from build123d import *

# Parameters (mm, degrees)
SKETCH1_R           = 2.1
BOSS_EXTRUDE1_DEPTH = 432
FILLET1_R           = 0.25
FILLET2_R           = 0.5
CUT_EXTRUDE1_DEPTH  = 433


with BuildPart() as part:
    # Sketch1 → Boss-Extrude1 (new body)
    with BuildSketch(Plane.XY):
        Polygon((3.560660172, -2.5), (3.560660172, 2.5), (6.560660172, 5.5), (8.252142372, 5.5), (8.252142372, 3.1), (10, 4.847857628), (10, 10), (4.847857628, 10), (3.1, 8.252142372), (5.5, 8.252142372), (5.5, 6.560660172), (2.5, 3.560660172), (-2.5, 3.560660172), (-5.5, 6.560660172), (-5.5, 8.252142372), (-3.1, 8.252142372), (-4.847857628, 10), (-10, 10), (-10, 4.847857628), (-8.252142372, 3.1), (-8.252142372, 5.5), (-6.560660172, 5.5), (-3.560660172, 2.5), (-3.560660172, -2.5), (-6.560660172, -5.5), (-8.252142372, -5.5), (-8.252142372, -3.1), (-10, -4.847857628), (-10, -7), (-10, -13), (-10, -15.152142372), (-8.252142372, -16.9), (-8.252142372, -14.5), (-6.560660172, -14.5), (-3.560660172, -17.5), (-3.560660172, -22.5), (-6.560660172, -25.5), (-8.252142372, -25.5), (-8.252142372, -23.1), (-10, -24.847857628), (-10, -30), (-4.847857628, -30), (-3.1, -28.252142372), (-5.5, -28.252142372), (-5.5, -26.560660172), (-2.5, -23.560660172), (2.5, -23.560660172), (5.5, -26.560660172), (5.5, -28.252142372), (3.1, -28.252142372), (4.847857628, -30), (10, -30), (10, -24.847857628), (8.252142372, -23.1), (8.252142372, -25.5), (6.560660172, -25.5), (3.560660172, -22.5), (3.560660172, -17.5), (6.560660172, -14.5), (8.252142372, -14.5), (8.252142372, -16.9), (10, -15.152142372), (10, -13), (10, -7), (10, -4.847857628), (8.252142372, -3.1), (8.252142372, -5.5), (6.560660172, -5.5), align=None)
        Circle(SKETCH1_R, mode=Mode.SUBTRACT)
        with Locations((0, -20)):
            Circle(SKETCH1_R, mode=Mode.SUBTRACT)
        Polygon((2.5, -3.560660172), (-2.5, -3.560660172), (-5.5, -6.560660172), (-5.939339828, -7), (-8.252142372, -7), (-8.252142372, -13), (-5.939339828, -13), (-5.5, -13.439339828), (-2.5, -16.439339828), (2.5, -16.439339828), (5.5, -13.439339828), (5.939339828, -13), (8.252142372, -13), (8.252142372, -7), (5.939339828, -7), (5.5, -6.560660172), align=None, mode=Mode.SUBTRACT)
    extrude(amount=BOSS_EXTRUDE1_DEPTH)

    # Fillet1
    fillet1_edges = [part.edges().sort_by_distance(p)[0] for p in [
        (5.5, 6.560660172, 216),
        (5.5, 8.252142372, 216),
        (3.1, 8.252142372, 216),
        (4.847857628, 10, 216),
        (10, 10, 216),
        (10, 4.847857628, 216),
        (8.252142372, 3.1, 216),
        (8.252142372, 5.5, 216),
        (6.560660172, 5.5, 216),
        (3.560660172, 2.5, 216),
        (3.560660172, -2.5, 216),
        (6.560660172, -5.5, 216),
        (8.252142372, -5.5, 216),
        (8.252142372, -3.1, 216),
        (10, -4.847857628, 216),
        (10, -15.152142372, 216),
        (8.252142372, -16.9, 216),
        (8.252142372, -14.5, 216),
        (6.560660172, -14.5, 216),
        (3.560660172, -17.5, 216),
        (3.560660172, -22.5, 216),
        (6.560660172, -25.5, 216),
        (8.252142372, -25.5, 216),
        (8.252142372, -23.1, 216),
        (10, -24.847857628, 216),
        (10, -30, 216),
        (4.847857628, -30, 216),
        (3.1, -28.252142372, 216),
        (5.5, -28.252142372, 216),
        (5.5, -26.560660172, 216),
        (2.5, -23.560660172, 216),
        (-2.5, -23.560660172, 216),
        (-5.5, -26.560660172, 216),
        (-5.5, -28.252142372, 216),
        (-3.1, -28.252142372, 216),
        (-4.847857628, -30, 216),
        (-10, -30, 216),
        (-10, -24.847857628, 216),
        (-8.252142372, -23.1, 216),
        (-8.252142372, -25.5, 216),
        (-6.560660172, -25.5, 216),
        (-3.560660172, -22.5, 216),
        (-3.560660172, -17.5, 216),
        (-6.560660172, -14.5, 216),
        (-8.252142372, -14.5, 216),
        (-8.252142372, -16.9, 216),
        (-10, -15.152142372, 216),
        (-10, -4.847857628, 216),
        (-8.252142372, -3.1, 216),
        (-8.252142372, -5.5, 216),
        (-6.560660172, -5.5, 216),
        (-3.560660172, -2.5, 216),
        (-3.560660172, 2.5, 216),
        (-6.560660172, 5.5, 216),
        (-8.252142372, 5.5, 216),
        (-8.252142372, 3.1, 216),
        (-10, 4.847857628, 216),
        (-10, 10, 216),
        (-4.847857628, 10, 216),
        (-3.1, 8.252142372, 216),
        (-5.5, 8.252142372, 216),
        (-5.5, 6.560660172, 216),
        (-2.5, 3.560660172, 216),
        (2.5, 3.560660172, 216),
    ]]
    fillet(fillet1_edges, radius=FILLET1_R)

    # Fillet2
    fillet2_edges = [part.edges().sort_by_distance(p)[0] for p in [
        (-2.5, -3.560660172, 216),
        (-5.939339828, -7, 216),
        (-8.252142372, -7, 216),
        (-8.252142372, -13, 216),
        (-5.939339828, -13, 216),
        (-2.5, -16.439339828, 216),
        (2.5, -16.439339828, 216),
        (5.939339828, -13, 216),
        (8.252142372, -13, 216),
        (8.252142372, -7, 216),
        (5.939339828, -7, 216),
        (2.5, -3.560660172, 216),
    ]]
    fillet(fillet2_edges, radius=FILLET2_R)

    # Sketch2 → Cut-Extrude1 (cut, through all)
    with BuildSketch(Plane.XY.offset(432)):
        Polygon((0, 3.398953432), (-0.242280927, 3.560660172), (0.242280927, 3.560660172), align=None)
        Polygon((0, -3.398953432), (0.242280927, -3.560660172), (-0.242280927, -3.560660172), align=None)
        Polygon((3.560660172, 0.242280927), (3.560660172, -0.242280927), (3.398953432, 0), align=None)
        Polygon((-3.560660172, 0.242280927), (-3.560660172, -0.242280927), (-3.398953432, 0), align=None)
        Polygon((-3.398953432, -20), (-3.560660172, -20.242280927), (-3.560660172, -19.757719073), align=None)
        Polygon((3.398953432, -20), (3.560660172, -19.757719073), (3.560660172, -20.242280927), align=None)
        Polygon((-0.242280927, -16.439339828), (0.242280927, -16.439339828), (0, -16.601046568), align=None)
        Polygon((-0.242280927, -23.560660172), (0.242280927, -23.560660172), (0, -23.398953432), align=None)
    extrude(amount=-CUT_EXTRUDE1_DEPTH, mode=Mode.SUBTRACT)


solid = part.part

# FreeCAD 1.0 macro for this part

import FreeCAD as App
import Part
import Sketcher

V = App.Vector


def edges_at(feature, points):
    """Names of the edges that pass closest to the given points."""
    edges = feature.Shape.Edges
    near = lambda p: min(range(len(edges)), key=lambda i: edges[i].distToShape(Part.Vertex(*p))[0])
    return sorted({f"Edge{near(p) + 1}" for p in points})

doc = App.newDocument("Part")
params = doc.addObject("Spreadsheet::Sheet", "Params")
for row, (alias, value) in enumerate([
    ("sketch1_diameter", "4.2 mm"),
    ("sketch1_width", "5 mm"),
    ("sketch1_height", "6 mm"),
    ("sketch1_width2", "2.4 mm"),
    ("pad1_length", "432 mm"),
    ("fillet_radius", "0.25 mm"),
    ("fillet2_radius", "0.5 mm"),
], start=1):
    params.set(f"A{row}", alias)
    params.set(f"B{row}", "=" + value)
    params.setAlias(f"B{row}", alias)

body = doc.addObject("PartDesign::Body", "Body")

sketch1 = body.newObject("Sketcher::SketchObject", "Sketch")
sketch1.AttachmentSupport = (doc.getObject("XY_Plane"), [""])
sketch1.MapMode = "FlatFace"
sketch1.addGeometry([
    Part.LineSegment(V(3.6, -2.5, 0), V(3.6, 2.5, 0)),
    Part.LineSegment(V(3.6, 2.5, 0), V(6.6, 5.5, 0)),
    Part.LineSegment(V(6.6, 5.5, 0), V(8.3, 5.5, 0)),
    Part.LineSegment(V(8.3, 5.5, 0), V(8.3, 3.1, 0)),
    Part.LineSegment(V(8.3, 3.1, 0), V(10, 4.8, 0)),
    Part.LineSegment(V(10, 4.8, 0), V(10, 10, 0)),
    Part.LineSegment(V(10, 10, 0), V(4.8, 10, 0)),
    Part.LineSegment(V(4.8, 10, 0), V(3.1, 8.3, 0)),
    Part.LineSegment(V(3.1, 8.3, 0), V(5.5, 8.3, 0)),
    Part.LineSegment(V(5.5, 8.3, 0), V(5.5, 6.6, 0)),
    Part.LineSegment(V(5.5, 6.6, 0), V(2.5, 3.6, 0)),
    Part.LineSegment(V(2.5, 3.6, 0), V(-2.5, 3.6, 0)),
    Part.LineSegment(V(-2.5, 3.6, 0), V(-5.5, 6.6, 0)),
    Part.LineSegment(V(-5.5, 6.6, 0), V(-5.5, 8.3, 0)),
    Part.LineSegment(V(-5.5, 8.3, 0), V(-3.1, 8.3, 0)),
    Part.LineSegment(V(-3.1, 8.3, 0), V(-4.8, 10, 0)),
    Part.LineSegment(V(-4.8, 10, 0), V(-10, 10, 0)),
    Part.LineSegment(V(-10, 10, 0), V(-10, 4.8, 0)),
    Part.LineSegment(V(-10, 4.8, 0), V(-8.3, 3.1, 0)),
    Part.LineSegment(V(-8.3, 3.1, 0), V(-8.3, 5.5, 0)),
    Part.LineSegment(V(-8.3, 5.5, 0), V(-6.6, 5.5, 0)),
    Part.LineSegment(V(-6.6, 5.5, 0), V(-3.6, 2.5, 0)),
    Part.LineSegment(V(-3.6, 2.5, 0), V(-3.6, -2.5, 0)),
    Part.LineSegment(V(-3.6, -2.5, 0), V(-6.6, -5.5, 0)),
    Part.LineSegment(V(-6.6, -5.5, 0), V(-8.3, -5.5, 0)),
    Part.LineSegment(V(-8.3, -5.5, 0), V(-8.3, -3.1, 0)),
    Part.LineSegment(V(-8.3, -3.1, 0), V(-10, -4.8, 0)),
    Part.LineSegment(V(-10, -4.8, 0), V(-10, -15.2, 0)),
    Part.LineSegment(V(-10, -15.2, 0), V(-8.3, -16.9, 0)),
    Part.LineSegment(V(-8.3, -16.9, 0), V(-8.3, -14.5, 0)),
    Part.LineSegment(V(-8.3, -14.5, 0), V(-6.6, -14.5, 0)),
    Part.LineSegment(V(-6.6, -14.5, 0), V(-3.6, -17.5, 0)),
    Part.LineSegment(V(-3.6, -17.5, 0), V(-3.6, -22.5, 0)),
    Part.LineSegment(V(-3.6, -22.5, 0), V(-6.6, -25.5, 0)),
    Part.LineSegment(V(-6.6, -25.5, 0), V(-8.3, -25.5, 0)),
    Part.LineSegment(V(-8.3, -25.5, 0), V(-8.3, -23.1, 0)),
    Part.LineSegment(V(-8.3, -23.1, 0), V(-10, -24.8, 0)),
    Part.LineSegment(V(-10, -24.8, 0), V(-10, -30, 0)),
    Part.LineSegment(V(-10, -30, 0), V(-4.8, -30, 0)),
    Part.LineSegment(V(-4.8, -30, 0), V(-3.1, -28.3, 0)),
    Part.LineSegment(V(-3.1, -28.3, 0), V(-5.5, -28.3, 0)),
    Part.LineSegment(V(-5.5, -28.3, 0), V(-5.5, -26.6, 0)),
    Part.LineSegment(V(-5.5, -26.6, 0), V(-2.5, -23.6, 0)),
    Part.LineSegment(V(-2.5, -23.6, 0), V(2.5, -23.6, 0)),
    Part.LineSegment(V(2.5, -23.6, 0), V(5.5, -26.6, 0)),
    Part.LineSegment(V(5.5, -26.6, 0), V(5.5, -28.3, 0)),
    Part.LineSegment(V(5.5, -28.3, 0), V(3.1, -28.3, 0)),
    Part.LineSegment(V(3.1, -28.3, 0), V(4.8, -30, 0)),
    Part.LineSegment(V(4.8, -30, 0), V(10, -30, 0)),
    Part.LineSegment(V(10, -30, 0), V(10, -24.8, 0)),
    Part.LineSegment(V(10, -24.8, 0), V(8.3, -23.1, 0)),
    Part.LineSegment(V(8.3, -23.1, 0), V(8.3, -25.5, 0)),
    Part.LineSegment(V(8.3, -25.5, 0), V(6.6, -25.5, 0)),
    Part.LineSegment(V(6.6, -25.5, 0), V(3.6, -22.5, 0)),
    Part.LineSegment(V(3.6, -22.5, 0), V(3.6, -17.5, 0)),
    Part.LineSegment(V(3.6, -17.5, 0), V(6.6, -14.5, 0)),
    Part.LineSegment(V(6.6, -14.5, 0), V(8.3, -14.5, 0)),
    Part.LineSegment(V(8.3, -14.5, 0), V(8.3, -16.9, 0)),
    Part.LineSegment(V(8.3, -16.9, 0), V(10, -15.2, 0)),
    Part.LineSegment(V(10, -15.2, 0), V(10, -4.8, 0)),
    Part.LineSegment(V(10, -4.8, 0), V(8.3, -3.1, 0)),
    Part.LineSegment(V(8.3, -3.1, 0), V(8.3, -5.5, 0)),
    Part.LineSegment(V(8.3, -5.5, 0), V(6.6, -5.5, 0)),
    Part.LineSegment(V(6.6, -5.5, 0), V(3.6, -2.5, 0)),
    Part.Circle(V(0, -20, 0), V(0, 0, 1), 2.1),
    Part.LineSegment(V(-2.5, -3.6, 0), V(2.5, -3.6, 0)),
    Part.LineSegment(V(2.5, -3.6, 0), V(5.9, -7, 0)),
    Part.LineSegment(V(5.9, -7, 0), V(8.3, -7, 0)),
    Part.LineSegment(V(8.3, -7, 0), V(8.3, -13, 0)),
    Part.LineSegment(V(8.3, -13, 0), V(5.9, -13, 0)),
    Part.LineSegment(V(5.9, -13, 0), V(2.5, -16.4, 0)),
    Part.LineSegment(V(2.5, -16.4, 0), V(-2.5, -16.4, 0)),
    Part.LineSegment(V(-2.5, -16.4, 0), V(-5.9, -13, 0)),
    Part.LineSegment(V(-5.9, -13, 0), V(-8.3, -13, 0)),
    Part.LineSegment(V(-8.3, -13, 0), V(-8.3, -7, 0)),
    Part.LineSegment(V(-8.3, -7, 0), V(-5.9, -7, 0)),
    Part.LineSegment(V(-5.9, -7, 0), V(-2.5, -3.6, 0)),
    Part.Circle(V(0, 0, 0), V(0, 0, 1), 2.1),
], False)
sketch1.addConstraint([
    Sketcher.Constraint("Coincident", 0, 2, 1, 1),
    Sketcher.Constraint("Coincident", 1, 2, 2, 1),
    Sketcher.Constraint("Coincident", 2, 2, 3, 1),
    Sketcher.Constraint("Coincident", 3, 2, 4, 1),
    Sketcher.Constraint("Coincident", 4, 2, 5, 1),
    Sketcher.Constraint("Coincident", 5, 2, 6, 1),
    Sketcher.Constraint("Coincident", 6, 2, 7, 1),
    Sketcher.Constraint("Coincident", 7, 2, 8, 1),
    Sketcher.Constraint("Coincident", 8, 2, 9, 1),
    Sketcher.Constraint("Coincident", 9, 2, 10, 1),
    Sketcher.Constraint("Coincident", 10, 2, 11, 1),
    Sketcher.Constraint("Coincident", 11, 2, 12, 1),
    Sketcher.Constraint("Coincident", 12, 2, 13, 1),
    Sketcher.Constraint("Coincident", 13, 2, 14, 1),
    Sketcher.Constraint("Coincident", 14, 2, 15, 1),
    Sketcher.Constraint("Coincident", 15, 2, 16, 1),
    Sketcher.Constraint("Coincident", 16, 2, 17, 1),
    Sketcher.Constraint("Coincident", 17, 2, 18, 1),
    Sketcher.Constraint("Coincident", 18, 2, 19, 1),
    Sketcher.Constraint("Coincident", 19, 2, 20, 1),
    Sketcher.Constraint("Coincident", 20, 2, 21, 1),
    Sketcher.Constraint("Coincident", 21, 2, 22, 1),
    Sketcher.Constraint("Coincident", 22, 2, 23, 1),
    Sketcher.Constraint("Coincident", 23, 2, 24, 1),
    Sketcher.Constraint("Coincident", 24, 2, 25, 1),
    Sketcher.Constraint("Coincident", 25, 2, 26, 1),
    Sketcher.Constraint("Coincident", 26, 2, 27, 1),
    Sketcher.Constraint("Coincident", 27, 2, 28, 1),
    Sketcher.Constraint("Coincident", 28, 2, 29, 1),
    Sketcher.Constraint("Coincident", 29, 2, 30, 1),
    Sketcher.Constraint("Coincident", 30, 2, 31, 1),
    Sketcher.Constraint("Coincident", 31, 2, 32, 1),
    Sketcher.Constraint("Coincident", 32, 2, 33, 1),
    Sketcher.Constraint("Coincident", 33, 2, 34, 1),
    Sketcher.Constraint("Coincident", 34, 2, 35, 1),
    Sketcher.Constraint("Coincident", 35, 2, 36, 1),
    Sketcher.Constraint("Coincident", 36, 2, 37, 1),
    Sketcher.Constraint("Coincident", 37, 2, 38, 1),
    Sketcher.Constraint("Coincident", 38, 2, 39, 1),
    Sketcher.Constraint("Coincident", 39, 2, 40, 1),
    Sketcher.Constraint("Coincident", 40, 2, 41, 1),
    Sketcher.Constraint("Coincident", 41, 2, 42, 1),
    Sketcher.Constraint("Coincident", 42, 2, 43, 1),
    Sketcher.Constraint("Coincident", 43, 2, 44, 1),
    Sketcher.Constraint("Coincident", 44, 2, 45, 1),
    Sketcher.Constraint("Coincident", 45, 2, 46, 1),
    Sketcher.Constraint("Coincident", 46, 2, 47, 1),
    Sketcher.Constraint("Coincident", 47, 2, 48, 1),
    Sketcher.Constraint("Coincident", 48, 2, 49, 1),
    Sketcher.Constraint("Coincident", 49, 2, 50, 1),
    Sketcher.Constraint("Coincident", 50, 2, 51, 1),
    Sketcher.Constraint("Coincident", 51, 2, 52, 1),
    Sketcher.Constraint("Coincident", 52, 2, 53, 1),
    Sketcher.Constraint("Coincident", 53, 2, 54, 1),
    Sketcher.Constraint("Coincident", 54, 2, 55, 1),
    Sketcher.Constraint("Coincident", 55, 2, 56, 1),
    Sketcher.Constraint("Coincident", 56, 2, 57, 1),
    Sketcher.Constraint("Coincident", 57, 2, 58, 1),
    Sketcher.Constraint("Coincident", 58, 2, 59, 1),
    Sketcher.Constraint("Coincident", 59, 2, 60, 1),
    Sketcher.Constraint("Coincident", 60, 2, 61, 1),
    Sketcher.Constraint("Coincident", 61, 2, 62, 1),
    Sketcher.Constraint("Coincident", 62, 2, 63, 1),
    Sketcher.Constraint("Coincident", 63, 2, 0, 1),
    Sketcher.Constraint("Coincident", 65, 2, 66, 1),
    Sketcher.Constraint("Coincident", 66, 2, 67, 1),
    Sketcher.Constraint("Coincident", 67, 2, 68, 1),
    Sketcher.Constraint("Coincident", 68, 2, 69, 1),
    Sketcher.Constraint("Coincident", 69, 2, 70, 1),
    Sketcher.Constraint("Coincident", 70, 2, 71, 1),
    Sketcher.Constraint("Coincident", 71, 2, 72, 1),
    Sketcher.Constraint("Coincident", 72, 2, 73, 1),
    Sketcher.Constraint("Coincident", 73, 2, 74, 1),
    Sketcher.Constraint("Coincident", 74, 2, 75, 1),
    Sketcher.Constraint("Coincident", 75, 2, 76, 1),
    Sketcher.Constraint("Coincident", 76, 2, 65, 1),
    Sketcher.Constraint("Vertical", 0),
    Sketcher.Constraint("Horizontal", 2),
    Sketcher.Constraint("Vertical", 3),
    Sketcher.Constraint("Vertical", 5),
    Sketcher.Constraint("Horizontal", 6),
    Sketcher.Constraint("Horizontal", 8),
    Sketcher.Constraint("Vertical", 9),
    Sketcher.Constraint("Horizontal", 11),
    Sketcher.Constraint("Vertical", 13),
    Sketcher.Constraint("Horizontal", 14),
    Sketcher.Constraint("Horizontal", 16),
    Sketcher.Constraint("Vertical", 17),
    Sketcher.Constraint("Vertical", 19),
    Sketcher.Constraint("Horizontal", 20),
    Sketcher.Constraint("Vertical", 22),
    Sketcher.Constraint("Horizontal", 24),
    Sketcher.Constraint("Vertical", 25),
    Sketcher.Constraint("Vertical", 27),
    Sketcher.Constraint("Vertical", 29),
    Sketcher.Constraint("Horizontal", 30),
    Sketcher.Constraint("Vertical", 32),
    Sketcher.Constraint("Horizontal", 34),
    Sketcher.Constraint("Vertical", 35),
    Sketcher.Constraint("Vertical", 37),
    Sketcher.Constraint("Horizontal", 38),
    Sketcher.Constraint("Horizontal", 40),
    Sketcher.Constraint("Vertical", 41),
    Sketcher.Constraint("Horizontal", 43),
    Sketcher.Constraint("Vertical", 45),
    Sketcher.Constraint("Horizontal", 46),
    Sketcher.Constraint("Horizontal", 48),
    Sketcher.Constraint("Vertical", 49),
    Sketcher.Constraint("Vertical", 51),
    Sketcher.Constraint("Horizontal", 52),
    Sketcher.Constraint("Vertical", 54),
    Sketcher.Constraint("Horizontal", 56),
    Sketcher.Constraint("Vertical", 57),
    Sketcher.Constraint("Vertical", 59),
    Sketcher.Constraint("Vertical", 61),
    Sketcher.Constraint("Horizontal", 62),
    Sketcher.Constraint("Horizontal", 65),
    Sketcher.Constraint("Horizontal", 67),
    Sketcher.Constraint("Vertical", 68),
    Sketcher.Constraint("Horizontal", 69),
    Sketcher.Constraint("Horizontal", 71),
    Sketcher.Constraint("Horizontal", 73),
    Sketcher.Constraint("Vertical", 74),
    Sketcher.Constraint("Horizontal", 75),
    Sketcher.Constraint("Coincident", 77, 3, -1, 1),
    Sketcher.Constraint("Equal", 64, 77),
    Sketcher.Constraint("Symmetric", 0, 2, 22, 2, -1, 1),
    Sketcher.Constraint("Symmetric", 1, 2, 23, 2, -1, 1),
    Sketcher.Constraint("Symmetric", 3, 2, 25, 2, -1, 1),
    Sketcher.Constraint("Symmetric", 4, 2, 26, 2, -1, 1),
    Sketcher.Constraint("Symmetric", 17, 2, 59, 2, -1, 1),
    Sketcher.Constraint("Symmetric", 18, 2, 60, 2, -1, 1),
    Sketcher.Constraint("Symmetric", 20, 2, 62, 2, -1, 1),
    Sketcher.Constraint("Symmetric", 11, 2, 65, 2, -1, 1),
    Sketcher.Constraint("Symmetric", 9, 2, 12, 2, -2),
    Sketcher.Constraint("Symmetric", 7, 2, 14, 2, -2),
    Sketcher.Constraint("Symmetric", 6, 2, 15, 2, -2),
    Sketcher.Constraint("Symmetric", 4, 2, 17, 2, -2),
    Sketcher.Constraint("Symmetric", 3, 2, 18, 2, -2),
    Sketcher.Constraint("Symmetric", 1, 2, 20, 2, -2),
    Sketcher.Constraint("Symmetric", 41, 2, 44, 2, -2),
    Sketcher.Constraint("Symmetric", 39, 2, 46, 2, -2),
    Sketcher.Constraint("Symmetric", 38, 2, 47, 2, -2),
    Sketcher.Constraint("Symmetric", 36, 2, 49, 2, -2),
    Sketcher.Constraint("Symmetric", 35, 2, 50, 2, -2),
    Sketcher.Constraint("Symmetric", 33, 2, 52, 2, -2),
    Sketcher.Constraint("Symmetric", 32, 2, 53, 2, -2),
    Sketcher.Constraint("Symmetric", 30, 2, 55, 2, -2),
    Sketcher.Constraint("Symmetric", 28, 2, 57, 2, -2),
    Sketcher.Constraint("Symmetric", 69, 2, 72, 2, -2),
    Sketcher.Constraint("Symmetric", 67, 2, 74, 2, -2),
    Sketcher.Constraint("PointOnObject", 64, 3, -2),
    Sketcher.Constraint("Parallel", 1, 4),
    Sketcher.Constraint("Parallel", 4, 7),
    Sketcher.Constraint("Parallel", 7, 10),
    Sketcher.Constraint("Perpendicular", 10, 12),
    Sketcher.Constraint("Parallel", 12, 15),
    Sketcher.Constraint("Parallel", 18, 21),
    Sketcher.Constraint("Perpendicular", 26, 28),
    Sketcher.Constraint("Parallel", 28, 31),
    Sketcher.Constraint("Perpendicular", 31, 33),
    Sketcher.Constraint("Parallel", 33, 36),
    Sketcher.Constraint("Parallel", 36, 39),
    Sketcher.Constraint("Parallel", 39, 42),
    Sketcher.Constraint("Perpendicular", 42, 44),
    Sketcher.Constraint("Perpendicular", 53, 55),
    Sketcher.Constraint("Parallel", 55, 58),
    Sketcher.Constraint("Parallel", 60, 63),
    Sketcher.Constraint("Parallel", 63, 66),
    Sketcher.Constraint("Perpendicular", 66, 70),
    Sketcher.Constraint("Perpendicular", 70, 72),
    Sketcher.Constraint("Perpendicular", 72, 76),
    Sketcher.Constraint("Vertical", 25, 2, 28, 2),
    Sketcher.Constraint("Vertical", 23, 2, 30, 2),
    Sketcher.Constraint("Vertical", 22, 2, 31, 2),
    Sketcher.Constraint("Vertical", 30, 2, 33, 2),
    Sketcher.Constraint("Vertical", 29, 2, 34, 2),
    Sketcher.Constraint("Vertical", 27, 2, 36, 2),
    Sketcher.Constraint("Vertical", 15, 2, 38, 2),
    Sketcher.Constraint("Vertical", 14, 2, 39, 2),
    Sketcher.Constraint("Vertical", 13, 2, 40, 2),
    Sketcher.Constraint("Vertical", 11, 2, 42, 2),
    Sketcher.Constraint("Vertical", 61, 2, 67, 2),
    Sketcher.Constraint("Vertical", 66, 2, 69, 2),
    Sketcher.Constraint("Vertical", 65, 2, 70, 2),
    Sketcher.Constraint("Vertical", 72, 2, 75, 2),
    Sketcher.Constraint("Equal", 71, 0),
    Sketcher.Constraint("Equal", 46, 3),
    Sketcher.Constraint("Equal", 48, 5),
    Sketcher.Constraint("Equal", 62, 9),
    Sketcher.Constraint("Equal", 25, 29),
    Sketcher.Constraint("Equal", 22, 32),
    Sketcher.Constraint("Equal", 29, 35),
    Sketcher.Constraint("Equal", 17, 37),
    Sketcher.Constraint("Equal", 13, 41),
    Sketcher.Constraint("Equal", 4, 7),
    Sketcher.Constraint("Equal", 1, 10),
    Sketcher.Constraint("Diameter", 64, 4.2),
    Sketcher.Constraint("DistanceX", 11, 2, 11, 1, 5.0),
    Sketcher.Constraint("DistanceY", 68, 2, 68, 1, 6.0),
    Sketcher.Constraint("DistanceX", 8, 1, 8, 2, 2.4),
    Sketcher.Constraint("DistanceY", 64, 3, -1, 1, 20.0),
    Sketcher.Constraint("DistanceX", -1, 1, 4, 2, 10.0),
    Sketcher.Constraint("DistanceY", 37, 2, -1, 1, 30.0),
    Sketcher.Constraint("DistanceY", 66, 2, -1, 1, 7.0),
    Sketcher.Constraint("DistanceY", -1, 1, 1, 2, 5.5),
    Sketcher.Constraint("Distance", 66, 4.863961),
    Sketcher.Constraint("DistanceX", 2, 1, 2, 2, 1.691482),
])
sketch1.setExpression("Constraints[197]", "Params.sketch1_diameter")
sketch1.setExpression("Constraints[198]", "Params.sketch1_width")
sketch1.setExpression("Constraints[199]", "Params.sketch1_height")
sketch1.setExpression("Constraints[200]", "Params.sketch1_width2")
pad1 = body.newObject("PartDesign::Pad", "Pad")
pad1.Profile = sketch1
pad1.setExpression("Length", "Params.pad1_length")
doc.recompute()

fillet = body.newObject("PartDesign::Fillet", "Fillet")
fillet.Base = (pad1, edges_at(pad1, [
    (5.5, 6.561, 216),
    (5.5, 8.252, 216),
    (3.1, 8.252, 216),
    (4.848, 10, 216),
    (10, 10, 216),
    (10, 4.848, 216),
    (8.252, 3.1, 216),
    (8.252, 5.5, 216),
    (6.561, 5.5, 216),
    (3.561, 2.5, 216),
    (3.561, -2.5, 216),
    (6.561, -5.5, 216),
    (8.252, -5.5, 216),
    (8.252, -3.1, 216),
    (10, -4.848, 216),
    (10, -15.152, 216),
    (8.252, -16.9, 216),
    (8.252, -14.5, 216),
    (6.561, -14.5, 216),
    (3.561, -17.5, 216),
    (3.561, -22.5, 216),
    (6.561, -25.5, 216),
    (8.252, -25.5, 216),
    (8.252, -23.1, 216),
    (10, -24.848, 216),
    (10, -30, 216),
    (4.848, -30, 216),
    (3.1, -28.252, 216),
    (5.5, -28.252, 216),
    (5.5, -26.561, 216),
    (2.5, -23.561, 216),
    (-2.5, -23.561, 216),
    (-5.5, -26.561, 216),
    (-5.5, -28.252, 216),
    (-3.1, -28.252, 216),
    (-4.848, -30, 216),
    (-10, -30, 216),
    (-10, -24.848, 216),
    (-8.252, -23.1, 216),
    (-8.252, -25.5, 216),
    (-6.561, -25.5, 216),
    (-3.561, -22.5, 216),
    (-3.561, -17.5, 216),
    (-6.561, -14.5, 216),
    (-8.252, -14.5, 216),
    (-8.252, -16.9, 216),
    (-10, -15.152, 216),
    (-10, -4.848, 216),
    (-8.252, -3.1, 216),
    (-8.252, -5.5, 216),
    (-6.561, -5.5, 216),
    (-3.561, -2.5, 216),
    (-3.561, 2.5, 216),
    (-6.561, 5.5, 216),
    (-8.252, 5.5, 216),
    (-8.252, 3.1, 216),
    (-10, 4.848, 216),
    (-10, 10, 216),
    (-4.848, 10, 216),
    (-3.1, 8.252, 216),
    (-5.5, 8.252, 216),
    (-5.5, 6.561, 216),
    (-2.5, 3.561, 216),
    (2.5, 3.561, 216),
]))
fillet.setExpression("Radius", "Params.fillet_radius")
doc.recompute()

fillet2 = body.newObject("PartDesign::Fillet", "Fillet001")
fillet2.Base = (fillet, edges_at(fillet, [
    (-2.5, -3.561, 216),
    (-5.939, -7, 216),
    (-8.252, -7, 216),
    (-8.252, -13, 216),
    (-5.939, -13, 216),
    (-2.5, -16.439, 216),
    (2.5, -16.439, 216),
    (5.939, -13, 216),
    (8.252, -13, 216),
    (8.252, -7, 216),
    (5.939, -7, 216),
    (2.5, -3.561, 216),
]))
fillet2.setExpression("Radius", "Params.fillet2_radius")

sketch2 = body.newObject("Sketcher::SketchObject", "Sketch001")
sketch2.AttachmentSupport = (doc.getObject("XY_Plane"), [""])
sketch2.MapMode = "FlatFace"
sketch2.AttachmentOffset = App.Placement(V(0, 0, 432), App.Rotation())
sketch2.addGeometry([
    Part.LineSegment(V(-0.24, 3.56, 0), V(0, 3.4, 0)),
    Part.LineSegment(V(0, 3.4, 0), V(0.24, 3.56, 0)),
    Part.LineSegment(V(0.24, 3.56, 0), V(-0.24, 3.56, 0)),
    Part.LineSegment(V(0.24, -3.56, 0), V(0, -3.4, 0)),
    Part.LineSegment(V(0, -3.4, 0), V(-0.24, -3.56, 0)),
    Part.LineSegment(V(-0.24, -3.56, 0), V(0.24, -3.56, 0)),
    Part.LineSegment(V(3.56, -0.24, 0), V(3.56, 0.24, 0)),
    Part.LineSegment(V(3.56, 0.24, 0), V(3.4, 0, 0)),
    Part.LineSegment(V(3.4, 0, 0), V(3.56, -0.24, 0)),
    Part.LineSegment(V(-3.56, 0.24, 0), V(-3.56, -0.24, 0)),
    Part.LineSegment(V(-3.56, -0.24, 0), V(-3.4, 0, 0)),
    Part.LineSegment(V(-3.4, 0, 0), V(-3.56, 0.24, 0)),
    Part.LineSegment(V(-3.56, -20.24, 0), V(-3.4, -20, 0)),
    Part.LineSegment(V(-3.4, -20, 0), V(-3.56, -19.76, 0)),
    Part.LineSegment(V(-3.56, -19.76, 0), V(-3.56, -20.24, 0)),
    Part.LineSegment(V(3.56, -19.76, 0), V(3.4, -20, 0)),
    Part.LineSegment(V(3.4, -20, 0), V(3.56, -20.24, 0)),
    Part.LineSegment(V(3.56, -20.24, 0), V(3.56, -19.76, 0)),
    Part.LineSegment(V(0.24, -16.44, 0), V(-0.24, -16.44, 0)),
    Part.LineSegment(V(-0.24, -16.44, 0), V(0, -16.6, 0)),
    Part.LineSegment(V(0, -16.6, 0), V(0.24, -16.44, 0)),
    Part.LineSegment(V(-0.24, -23.56, 0), V(0.24, -23.56, 0)),
    Part.LineSegment(V(0.24, -23.56, 0), V(0, -23.4, 0)),
    Part.LineSegment(V(0, -23.4, 0), V(-0.24, -23.56, 0)),
], False)
sketch2.addConstraint([
    Sketcher.Constraint("Coincident", 0, 2, 1, 1),
    Sketcher.Constraint("Coincident", 1, 2, 2, 1),
    Sketcher.Constraint("Coincident", 2, 2, 0, 1),
    Sketcher.Constraint("Coincident", 3, 2, 4, 1),
    Sketcher.Constraint("Coincident", 4, 2, 5, 1),
    Sketcher.Constraint("Coincident", 5, 2, 3, 1),
    Sketcher.Constraint("Coincident", 6, 2, 7, 1),
    Sketcher.Constraint("Coincident", 7, 2, 8, 1),
    Sketcher.Constraint("Coincident", 8, 2, 6, 1),
    Sketcher.Constraint("Coincident", 9, 2, 10, 1),
    Sketcher.Constraint("Coincident", 10, 2, 11, 1),
    Sketcher.Constraint("Coincident", 11, 2, 9, 1),
    Sketcher.Constraint("Coincident", 12, 2, 13, 1),
    Sketcher.Constraint("Coincident", 13, 2, 14, 1),
    Sketcher.Constraint("Coincident", 14, 2, 12, 1),
    Sketcher.Constraint("Coincident", 15, 2, 16, 1),
    Sketcher.Constraint("Coincident", 16, 2, 17, 1),
    Sketcher.Constraint("Coincident", 17, 2, 15, 1),
    Sketcher.Constraint("Coincident", 18, 2, 19, 1),
    Sketcher.Constraint("Coincident", 19, 2, 20, 1),
    Sketcher.Constraint("Coincident", 20, 2, 18, 1),
    Sketcher.Constraint("Coincident", 21, 2, 22, 1),
    Sketcher.Constraint("Coincident", 22, 2, 23, 1),
    Sketcher.Constraint("Coincident", 23, 2, 21, 1),
    Sketcher.Constraint("Horizontal", 2),
    Sketcher.Constraint("Horizontal", 5),
    Sketcher.Constraint("Vertical", 6),
    Sketcher.Constraint("Vertical", 9),
    Sketcher.Constraint("Vertical", 14),
    Sketcher.Constraint("Vertical", 17),
    Sketcher.Constraint("Horizontal", 18),
    Sketcher.Constraint("Horizontal", 21),
    Sketcher.Constraint("Symmetric", 0, 2, 3, 2, -1, 1),
    Sketcher.Constraint("Symmetric", 1, 2, 4, 2, -1, 1),
    Sketcher.Constraint("Symmetric", 6, 2, 9, 2, -1, 1),
    Sketcher.Constraint("Symmetric", 7, 2, 10, 2, -1, 1),
    Sketcher.Constraint("Symmetric", 12, 2, 15, 2, -2),
    Sketcher.Constraint("Symmetric", 14, 2, 16, 2, -2),
    Sketcher.Constraint("PointOnObject", 0, 2, -2),
    Sketcher.Constraint("PointOnObject", 7, 2, -1),
    Sketcher.Constraint("PointOnObject", 19, 2, -2),
    Sketcher.Constraint("PointOnObject", 22, 2, -2),
    Sketcher.Constraint("Parallel", 0, 3),
    Sketcher.Constraint("Perpendicular", 3, 7),
    Sketcher.Constraint("Perpendicular", 4, 8),
    Sketcher.Constraint("Parallel", 8, 11),
    Sketcher.Constraint("Parallel", 10, 12),
    Sketcher.Constraint("Parallel", 11, 13),
    Sketcher.Constraint("Parallel", 12, 15),
    Sketcher.Constraint("Parallel", 13, 16),
    Sketcher.Constraint("Perpendicular", 15, 19),
    Sketcher.Constraint("Perpendicular", 16, 20),
    Sketcher.Constraint("Parallel", 19, 22),
    Sketcher.Constraint("Parallel", 20, 23),
    Sketcher.Constraint("Vertical", 10, 2, 12, 2),
    Sketcher.Constraint("Vertical", 11, 2, 13, 2),
    Sketcher.Constraint("Vertical", 4, 2, 18, 2),
    Sketcher.Constraint("Vertical", 20, 2, 21, 2),
    Sketcher.Constraint("Equal", 21, 6),
    Sketcher.Constraint("DistanceY", 12, 2, -1, 1, 20.0),
    Sketcher.Constraint("DistanceX", 2, 2, 2, 1, 0.484562),
    Sketcher.Constraint("Distance", 0, 0.291289),
    Sketcher.Constraint("DistanceY", -1, 1, 1, 2, 3.56066),
    Sketcher.Constraint("DistanceX", -1, 1, 6, 2, 3.56066),
    Sketcher.Constraint("DistanceY", 18, 2, -1, 1, 16.43934),
    Sketcher.Constraint("DistanceY", 21, 2, -1, 1, 23.56066),
])
pocket1 = body.newObject("PartDesign::Pocket", "Pocket")
pocket1.Profile = sketch2
pocket1.Type = "ThroughAll"

doc.recompute()
